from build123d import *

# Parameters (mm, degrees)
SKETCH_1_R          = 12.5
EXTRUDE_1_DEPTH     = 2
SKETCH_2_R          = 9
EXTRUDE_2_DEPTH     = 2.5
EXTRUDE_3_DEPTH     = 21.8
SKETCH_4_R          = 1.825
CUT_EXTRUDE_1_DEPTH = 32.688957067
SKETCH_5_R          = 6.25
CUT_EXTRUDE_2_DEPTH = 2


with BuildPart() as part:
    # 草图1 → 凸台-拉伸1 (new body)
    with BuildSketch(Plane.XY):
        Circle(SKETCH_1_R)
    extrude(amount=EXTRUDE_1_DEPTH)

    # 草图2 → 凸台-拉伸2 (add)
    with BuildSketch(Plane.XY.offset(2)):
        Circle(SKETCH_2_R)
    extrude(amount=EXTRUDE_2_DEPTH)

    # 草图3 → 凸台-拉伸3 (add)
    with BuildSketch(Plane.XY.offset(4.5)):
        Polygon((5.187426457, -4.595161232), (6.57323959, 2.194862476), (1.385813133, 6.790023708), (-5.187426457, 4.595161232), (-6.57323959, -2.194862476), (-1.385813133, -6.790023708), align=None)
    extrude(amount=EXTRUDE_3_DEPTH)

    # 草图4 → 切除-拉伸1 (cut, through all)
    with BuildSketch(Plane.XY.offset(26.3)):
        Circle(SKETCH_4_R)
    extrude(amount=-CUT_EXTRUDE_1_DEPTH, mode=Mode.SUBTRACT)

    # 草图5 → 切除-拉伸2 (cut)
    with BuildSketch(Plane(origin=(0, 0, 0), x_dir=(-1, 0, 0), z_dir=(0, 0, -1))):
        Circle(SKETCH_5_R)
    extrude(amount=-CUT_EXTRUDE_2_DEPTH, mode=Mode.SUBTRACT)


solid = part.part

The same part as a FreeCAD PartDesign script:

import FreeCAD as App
import Part
import Sketcher
Q = App.Units.Quantity

doc = App.newDocument("Part")
body = doc.addObject("PartDesign::Body", "Body")

# Sketch on XY plane
sketch1 = doc.addObject("Sketcher::SketchObject", "Sketch")
body.addObject(sketch1)
sketch1.AttachmentSupport = (doc.XY_Plane, [""])
sketch1.MapMode = "FlatFace"
sketch1.addGeometry(Part.Circle(App.Vector(0, 0, 0), App.Vector(0, 0, 1), 12), False)
sketch1.addConstraint(Sketcher.Constraint("Coincident", 0, 3, -1, 1))
sketch1.addConstraint(Sketcher.Constraint("Diameter", 0, Q("25 mm")))
pad1 = doc.addObject("PartDesign::Pad", "Pad")
body.addObject(pad1)
pad1.Profile = sketch1
pad1.Length = 2

# Sketch on XY plane
sketch2 = doc.addObject("Sketcher::SketchObject", "Sketch001")
body.addObject(sketch2)
sketch2.AttachmentSupport = (doc.XY_Plane, [""])
sketch2.MapMode = "FlatFace"
sketch2.AttachmentOffset = App.Placement(App.Vector(0, 0, 2), App.Rotation())
sketch2.addGeometry(Part.Circle(App.Vector(0, 0, 0), App.Vector(0, 0, 1), 9), False)
sketch2.addConstraint(Sketcher.Constraint("Coincident", 0, 3, -1, 1))
sketch2.addConstraint(Sketcher.Constraint("Diameter", 0, Q("18 mm")))
pad2 = doc.addObject("PartDesign::Pad", "Pad001")
body.addObject(pad2)
pad2.Profile = sketch2
pad2.Length = 2.5

# Sketch on XY plane
sketch3 = doc.addObject("Sketcher::SketchObject", "Sketch002")
body.addObject(sketch3)
sketch3.AttachmentSupport = (doc.XY_Plane, [""])
sketch3.MapMode = "FlatFace"
sketch3.AttachmentOffset = App.Placement(App.Vector(0, 0, 4.5), App.Rotation())
sketch3.addGeometry(Part.LineSegment(App.Vector(5, -5, 0), App.Vector(7, 2, 0)), False)
sketch3.addGeometry(Part.LineSegment(App.Vector(7, 2, 0), App.Vector(1, 7, 0)), False)
sketch3.addGeometry(Part.LineSegment(App.Vector(1, 7, 0), App.Vector(-5, 5, 0)), False)
sketch3.addGeometry(Part.LineSegment(App.Vector(-5, 5, 0), App.Vector(-7, -2, 0)), False)
sketch3.addGeometry(Part.LineSegment(App.Vector(-7, -2, 0), App.Vector(-1, -7, 0)), False)
sketch3.addGeometry(Part.LineSegment(App.Vector(-1, -7, 0), App.Vector(5, -5, 0)), False)
sketch3.addConstraint(Sketcher.Constraint("Coincident", 0, 2, 1, 1))
sketch3.addConstraint(Sketcher.Constraint("Coincident", 1, 2, 2, 1))
sketch3.addConstraint(Sketcher.Constraint("Coincident", 2, 2, 3, 1))
sketch3.addConstraint(Sketcher.Constraint("Coincident", 3, 2, 4, 1))
sketch3.addConstraint(Sketcher.Constraint("Coincident", 4, 2, 5, 1))
sketch3.addConstraint(Sketcher.Constraint("Coincident", 5, 2, 0, 1))
sketch3.addConstraint(Sketcher.Constraint("Symmetric", 0, 2, 3, 2, -1, 1))
sketch3.addConstraint(Sketcher.Constraint("Symmetric", 1, 2, 4, 2, -1, 1))
sketch3.addConstraint(Sketcher.Constraint("Symmetric", 2, 2, 5, 2, -1, 1))
sketch3.addConstraint(Sketcher.Constraint("Equal", 0, 1))
sketch3.addConstraint(Sketcher.Constraint("Equal", 1, 2))
sketch3.addConstraint(Sketcher.Constraint("Distance", 0, Q("6.93 mm")))
sketch3.addConstraint(Sketcher.Constraint("DistanceY", 0, 2, 2, 2, Q("2.400299 mm")))
sketch3.addConstraint(Sketcher.Constraint("DistanceX", -1, 1, 0, 2, Q("6.57324 mm")))
sketch3.addConstraint(Sketcher.Constraint("DistanceY", -1, 1, 2, 2, Q("4.595161 mm")))
pad3 = doc.addObject("PartDesign::Pad", "Pad002")
body.addObject(pad3)
pad3.Profile = sketch3
pad3.Length = 21.8

# Sketch on XY plane
sketch4 = doc.addObject("Sketcher::SketchObject", "Sketch003")
body.addObject(sketch4)
sketch4.AttachmentSupport = (doc.XY_Plane, [""])
sketch4.MapMode = "FlatFace"
sketch4.AttachmentOffset = App.Placement(App.Vector(0, 0, 26.3), App.Rotation())
sketch4.addGeometry(Part.Circle(App.Vector(0, 0, 0), App.Vector(0, 0, 1), 1.8), False)
sketch4.addConstraint(Sketcher.Constraint("Coincident", 0, 3, -1, 1))
sketch4.addConstraint(Sketcher.Constraint("Diameter", 0, Q("3.65 mm")))
pocket1 = doc.addObject("PartDesign::Pocket", "Pocket")
body.addObject(pocket1)
pocket1.Profile = sketch4
pocket1.Type = "ThroughAll"

# Sketch on XY plane
sketch5 = doc.addObject("Sketcher::SketchObject", "Sketch004")
body.addObject(sketch5)
sketch5.AttachmentSupport = (doc.XY_Plane, [""])
sketch5.MapMode = "FlatFace"
sketch5.addGeometry(Part.Circle(App.Vector(0, 0, 0), App.Vector(0, 0, 1), 6), False)
sketch5.addConstraint(Sketcher.Constraint("Coincident", 0, 3, -1, 1))
sketch5.addConstraint(Sketcher.Constraint("Diameter", 0, Q("12.5 mm")))
pocket2 = doc.addObject("PartDesign::Pocket", "Pocket001")
body.addObject(pocket2)
pocket2.Profile = sketch5
pocket2.Length = 2
pocket2.Reversed = True

doc.recompute()
